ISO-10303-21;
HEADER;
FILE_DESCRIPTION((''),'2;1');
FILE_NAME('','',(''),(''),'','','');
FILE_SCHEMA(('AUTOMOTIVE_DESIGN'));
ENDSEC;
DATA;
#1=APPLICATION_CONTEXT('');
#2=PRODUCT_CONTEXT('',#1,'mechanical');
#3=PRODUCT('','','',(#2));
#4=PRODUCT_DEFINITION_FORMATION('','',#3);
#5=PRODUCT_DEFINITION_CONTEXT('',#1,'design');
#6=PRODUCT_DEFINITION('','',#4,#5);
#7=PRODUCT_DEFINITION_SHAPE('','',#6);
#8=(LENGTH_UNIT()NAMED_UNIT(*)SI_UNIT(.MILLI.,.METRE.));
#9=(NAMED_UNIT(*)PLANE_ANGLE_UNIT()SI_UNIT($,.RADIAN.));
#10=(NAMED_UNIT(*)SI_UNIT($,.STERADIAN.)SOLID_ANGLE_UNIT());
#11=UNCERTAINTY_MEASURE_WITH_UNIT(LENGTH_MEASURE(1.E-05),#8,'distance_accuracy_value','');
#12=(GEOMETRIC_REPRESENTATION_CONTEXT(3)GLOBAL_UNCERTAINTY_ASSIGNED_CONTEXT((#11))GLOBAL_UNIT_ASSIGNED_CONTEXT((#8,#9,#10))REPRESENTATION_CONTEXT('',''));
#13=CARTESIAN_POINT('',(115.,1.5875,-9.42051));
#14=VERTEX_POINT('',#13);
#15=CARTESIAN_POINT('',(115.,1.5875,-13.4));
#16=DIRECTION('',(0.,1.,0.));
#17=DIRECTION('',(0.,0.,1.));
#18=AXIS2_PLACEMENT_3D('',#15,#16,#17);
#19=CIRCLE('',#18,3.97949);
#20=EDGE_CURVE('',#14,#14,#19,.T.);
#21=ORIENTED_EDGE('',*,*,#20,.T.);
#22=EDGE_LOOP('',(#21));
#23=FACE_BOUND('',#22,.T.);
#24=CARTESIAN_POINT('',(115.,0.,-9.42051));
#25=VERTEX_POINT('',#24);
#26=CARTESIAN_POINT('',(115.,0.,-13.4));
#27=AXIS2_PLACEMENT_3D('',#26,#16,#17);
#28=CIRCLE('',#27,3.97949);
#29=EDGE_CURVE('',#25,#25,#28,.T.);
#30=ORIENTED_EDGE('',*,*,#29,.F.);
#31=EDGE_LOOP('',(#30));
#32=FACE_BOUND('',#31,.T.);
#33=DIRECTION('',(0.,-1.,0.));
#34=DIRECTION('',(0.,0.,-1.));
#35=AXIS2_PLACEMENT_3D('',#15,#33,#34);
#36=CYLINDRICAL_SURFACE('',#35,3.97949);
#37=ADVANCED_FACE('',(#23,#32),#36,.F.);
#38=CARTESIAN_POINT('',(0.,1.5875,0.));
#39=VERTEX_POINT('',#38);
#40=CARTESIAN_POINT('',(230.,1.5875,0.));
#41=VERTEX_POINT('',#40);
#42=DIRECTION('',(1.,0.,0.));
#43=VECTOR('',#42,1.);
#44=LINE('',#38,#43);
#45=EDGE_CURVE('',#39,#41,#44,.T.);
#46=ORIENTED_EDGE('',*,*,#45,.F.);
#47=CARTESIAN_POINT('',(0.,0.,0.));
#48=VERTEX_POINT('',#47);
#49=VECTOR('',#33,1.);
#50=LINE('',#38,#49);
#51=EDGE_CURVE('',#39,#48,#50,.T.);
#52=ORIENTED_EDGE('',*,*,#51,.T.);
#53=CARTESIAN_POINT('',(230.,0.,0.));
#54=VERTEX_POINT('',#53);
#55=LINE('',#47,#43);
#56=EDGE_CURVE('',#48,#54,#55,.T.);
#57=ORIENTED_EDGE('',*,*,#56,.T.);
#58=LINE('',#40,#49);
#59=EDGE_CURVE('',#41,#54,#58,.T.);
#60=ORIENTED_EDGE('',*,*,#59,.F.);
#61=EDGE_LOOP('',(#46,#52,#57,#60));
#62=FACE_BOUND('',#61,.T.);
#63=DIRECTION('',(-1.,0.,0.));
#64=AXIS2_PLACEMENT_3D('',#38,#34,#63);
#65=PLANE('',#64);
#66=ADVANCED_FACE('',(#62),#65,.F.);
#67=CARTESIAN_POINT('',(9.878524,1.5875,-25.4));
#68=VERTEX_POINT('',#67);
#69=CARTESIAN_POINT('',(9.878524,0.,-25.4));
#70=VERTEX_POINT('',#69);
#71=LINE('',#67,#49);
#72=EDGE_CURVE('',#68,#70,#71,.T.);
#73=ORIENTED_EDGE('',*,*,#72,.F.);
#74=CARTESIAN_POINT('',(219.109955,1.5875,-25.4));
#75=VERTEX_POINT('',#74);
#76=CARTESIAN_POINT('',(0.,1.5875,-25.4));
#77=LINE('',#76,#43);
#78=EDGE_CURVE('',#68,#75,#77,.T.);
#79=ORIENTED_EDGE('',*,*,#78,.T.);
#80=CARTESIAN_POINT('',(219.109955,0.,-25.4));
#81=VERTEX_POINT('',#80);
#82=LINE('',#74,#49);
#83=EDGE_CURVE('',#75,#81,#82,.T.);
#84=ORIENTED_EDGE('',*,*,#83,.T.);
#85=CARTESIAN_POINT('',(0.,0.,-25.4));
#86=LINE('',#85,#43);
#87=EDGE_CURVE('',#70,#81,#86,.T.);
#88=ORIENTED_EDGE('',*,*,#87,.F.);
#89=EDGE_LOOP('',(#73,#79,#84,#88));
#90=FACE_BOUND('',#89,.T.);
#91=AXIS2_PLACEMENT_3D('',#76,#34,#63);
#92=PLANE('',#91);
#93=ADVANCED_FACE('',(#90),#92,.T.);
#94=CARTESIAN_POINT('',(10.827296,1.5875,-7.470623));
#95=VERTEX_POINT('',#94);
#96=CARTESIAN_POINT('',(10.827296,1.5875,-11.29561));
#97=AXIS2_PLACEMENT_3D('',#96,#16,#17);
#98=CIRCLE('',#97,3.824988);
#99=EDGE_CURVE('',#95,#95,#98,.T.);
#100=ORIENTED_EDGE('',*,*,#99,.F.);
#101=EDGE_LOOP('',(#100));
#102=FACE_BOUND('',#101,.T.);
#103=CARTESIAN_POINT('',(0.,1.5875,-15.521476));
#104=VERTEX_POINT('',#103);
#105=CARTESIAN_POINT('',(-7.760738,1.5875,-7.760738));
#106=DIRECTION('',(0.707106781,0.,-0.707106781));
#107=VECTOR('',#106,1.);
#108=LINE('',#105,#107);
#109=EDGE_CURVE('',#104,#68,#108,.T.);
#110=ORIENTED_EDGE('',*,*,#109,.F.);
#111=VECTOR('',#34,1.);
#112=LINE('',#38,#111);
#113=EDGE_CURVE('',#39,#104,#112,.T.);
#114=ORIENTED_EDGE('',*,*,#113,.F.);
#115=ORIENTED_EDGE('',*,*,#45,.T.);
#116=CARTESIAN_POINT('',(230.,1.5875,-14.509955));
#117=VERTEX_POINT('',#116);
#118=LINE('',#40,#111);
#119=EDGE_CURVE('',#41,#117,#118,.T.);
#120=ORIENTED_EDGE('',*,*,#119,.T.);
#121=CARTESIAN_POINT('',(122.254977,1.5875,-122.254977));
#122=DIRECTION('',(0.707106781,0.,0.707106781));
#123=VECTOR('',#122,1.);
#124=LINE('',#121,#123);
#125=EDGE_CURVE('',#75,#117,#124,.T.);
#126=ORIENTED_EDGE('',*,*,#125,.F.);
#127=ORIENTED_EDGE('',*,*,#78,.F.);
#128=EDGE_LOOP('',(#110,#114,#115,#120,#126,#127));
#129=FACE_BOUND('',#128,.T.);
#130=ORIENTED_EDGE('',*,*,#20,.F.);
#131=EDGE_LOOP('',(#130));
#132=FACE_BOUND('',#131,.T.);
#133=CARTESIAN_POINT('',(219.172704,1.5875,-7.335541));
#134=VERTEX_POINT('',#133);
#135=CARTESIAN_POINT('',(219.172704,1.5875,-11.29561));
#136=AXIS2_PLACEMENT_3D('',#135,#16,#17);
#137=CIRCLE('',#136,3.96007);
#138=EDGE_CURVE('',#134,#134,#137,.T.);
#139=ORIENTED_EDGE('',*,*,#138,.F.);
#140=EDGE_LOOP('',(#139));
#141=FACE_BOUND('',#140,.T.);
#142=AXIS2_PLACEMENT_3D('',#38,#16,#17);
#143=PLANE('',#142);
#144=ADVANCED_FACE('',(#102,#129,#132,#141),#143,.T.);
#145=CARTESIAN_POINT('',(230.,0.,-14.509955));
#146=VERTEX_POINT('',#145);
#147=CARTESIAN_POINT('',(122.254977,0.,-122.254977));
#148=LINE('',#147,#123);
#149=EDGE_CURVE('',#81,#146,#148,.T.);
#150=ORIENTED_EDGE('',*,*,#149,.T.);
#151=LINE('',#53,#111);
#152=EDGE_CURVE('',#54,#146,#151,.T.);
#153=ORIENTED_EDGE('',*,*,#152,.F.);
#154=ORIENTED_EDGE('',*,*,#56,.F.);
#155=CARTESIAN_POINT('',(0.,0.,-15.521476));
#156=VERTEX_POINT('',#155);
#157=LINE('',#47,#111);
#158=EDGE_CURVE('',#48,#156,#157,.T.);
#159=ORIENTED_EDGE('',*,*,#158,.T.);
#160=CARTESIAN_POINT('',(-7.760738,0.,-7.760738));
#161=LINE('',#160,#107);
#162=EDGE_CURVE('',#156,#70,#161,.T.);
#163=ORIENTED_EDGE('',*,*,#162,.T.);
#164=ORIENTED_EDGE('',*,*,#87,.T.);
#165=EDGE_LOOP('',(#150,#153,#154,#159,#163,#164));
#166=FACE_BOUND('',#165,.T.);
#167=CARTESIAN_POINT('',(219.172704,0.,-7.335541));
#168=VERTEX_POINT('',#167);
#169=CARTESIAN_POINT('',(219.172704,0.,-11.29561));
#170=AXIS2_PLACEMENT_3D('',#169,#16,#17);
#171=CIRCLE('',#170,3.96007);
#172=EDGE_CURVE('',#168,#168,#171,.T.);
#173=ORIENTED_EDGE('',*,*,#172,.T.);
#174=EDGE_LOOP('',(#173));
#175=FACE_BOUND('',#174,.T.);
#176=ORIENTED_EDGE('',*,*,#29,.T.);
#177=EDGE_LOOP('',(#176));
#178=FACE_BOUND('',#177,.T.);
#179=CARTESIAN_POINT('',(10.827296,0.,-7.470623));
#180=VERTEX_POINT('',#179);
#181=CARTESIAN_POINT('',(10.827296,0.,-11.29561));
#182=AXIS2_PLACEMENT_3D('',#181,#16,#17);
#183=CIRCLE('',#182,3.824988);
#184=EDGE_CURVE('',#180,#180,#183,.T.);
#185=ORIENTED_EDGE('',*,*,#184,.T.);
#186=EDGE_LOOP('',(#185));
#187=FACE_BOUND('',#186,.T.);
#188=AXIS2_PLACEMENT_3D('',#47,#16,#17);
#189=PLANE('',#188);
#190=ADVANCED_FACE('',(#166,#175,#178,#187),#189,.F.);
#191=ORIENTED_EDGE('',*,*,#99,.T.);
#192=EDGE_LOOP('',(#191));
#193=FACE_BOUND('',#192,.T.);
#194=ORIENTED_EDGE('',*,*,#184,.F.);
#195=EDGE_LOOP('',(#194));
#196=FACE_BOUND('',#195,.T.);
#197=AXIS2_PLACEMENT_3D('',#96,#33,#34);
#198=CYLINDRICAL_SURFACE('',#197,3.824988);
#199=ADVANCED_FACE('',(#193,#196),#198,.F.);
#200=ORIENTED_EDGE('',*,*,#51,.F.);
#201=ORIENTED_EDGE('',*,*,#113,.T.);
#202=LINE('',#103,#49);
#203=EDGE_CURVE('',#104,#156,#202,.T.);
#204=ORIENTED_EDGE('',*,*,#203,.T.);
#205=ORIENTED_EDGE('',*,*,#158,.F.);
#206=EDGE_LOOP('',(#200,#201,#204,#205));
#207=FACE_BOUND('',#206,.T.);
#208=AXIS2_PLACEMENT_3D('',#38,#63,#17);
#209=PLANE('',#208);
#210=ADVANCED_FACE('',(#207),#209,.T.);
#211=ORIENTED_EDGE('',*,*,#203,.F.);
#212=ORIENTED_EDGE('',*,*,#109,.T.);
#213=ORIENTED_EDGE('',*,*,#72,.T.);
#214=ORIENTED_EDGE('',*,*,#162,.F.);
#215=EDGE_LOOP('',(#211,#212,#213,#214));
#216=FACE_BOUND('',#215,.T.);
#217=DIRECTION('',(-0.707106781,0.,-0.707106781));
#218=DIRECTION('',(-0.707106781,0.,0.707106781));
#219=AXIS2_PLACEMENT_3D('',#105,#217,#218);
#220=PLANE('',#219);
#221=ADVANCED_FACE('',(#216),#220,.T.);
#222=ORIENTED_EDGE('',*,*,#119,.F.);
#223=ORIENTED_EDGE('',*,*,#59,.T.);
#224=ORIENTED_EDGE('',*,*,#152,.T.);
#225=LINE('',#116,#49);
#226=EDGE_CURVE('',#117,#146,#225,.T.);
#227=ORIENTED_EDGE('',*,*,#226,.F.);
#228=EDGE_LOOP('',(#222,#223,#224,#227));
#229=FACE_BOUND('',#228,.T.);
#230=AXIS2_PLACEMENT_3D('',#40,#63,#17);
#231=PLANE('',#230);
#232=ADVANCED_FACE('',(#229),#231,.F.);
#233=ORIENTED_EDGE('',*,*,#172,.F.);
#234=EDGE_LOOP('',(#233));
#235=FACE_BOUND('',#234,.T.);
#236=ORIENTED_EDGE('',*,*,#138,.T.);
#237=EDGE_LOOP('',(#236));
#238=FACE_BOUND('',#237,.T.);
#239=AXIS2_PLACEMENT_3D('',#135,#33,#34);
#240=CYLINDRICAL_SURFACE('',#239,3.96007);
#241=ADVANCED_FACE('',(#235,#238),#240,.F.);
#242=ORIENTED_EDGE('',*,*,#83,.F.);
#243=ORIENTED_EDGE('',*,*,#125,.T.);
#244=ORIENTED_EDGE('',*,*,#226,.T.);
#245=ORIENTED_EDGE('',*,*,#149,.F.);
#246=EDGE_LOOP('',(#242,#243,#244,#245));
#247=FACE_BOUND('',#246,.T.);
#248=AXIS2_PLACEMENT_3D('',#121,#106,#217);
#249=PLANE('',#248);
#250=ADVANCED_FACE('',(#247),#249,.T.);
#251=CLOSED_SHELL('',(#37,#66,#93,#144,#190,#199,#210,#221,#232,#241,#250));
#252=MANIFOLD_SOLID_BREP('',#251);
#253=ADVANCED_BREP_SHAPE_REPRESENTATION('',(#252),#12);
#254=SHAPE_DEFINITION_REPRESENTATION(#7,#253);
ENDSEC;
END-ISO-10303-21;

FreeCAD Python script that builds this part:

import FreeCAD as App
import Part
import Sketcher
from FreeCAD import Vector
Q = App.Units.Quantity


def add_polygon(sketch, points):
    """Adds a closed chain of lines whose ends are joined by coincident constraints."""
    first, n = sketch.GeometryCount, len(points)
    for a, b in zip(points, points[1:] + points[:1]):
        sketch.addGeometry(Part.LineSegment(App.Vector(*a, 0), App.Vector(*b, 0)), False)
    for i in range(n):
        sketch.addConstraint(Sketcher.Constraint("Coincident", first + i, 2, first + (i + 1) % n, 1))

doc = App.newDocument("Part")
body = doc.addObject("PartDesign::Body", "Body")

sketch1 = body.newObject("Sketcher::SketchObject", "Sketch")
sketch1.AttachmentSupport = (doc.getObject("XZ_Plane"), [""])
sketch1.MapMode = "FlatFace"
add_polygon(sketch1, [(9.878524, -25.4), (0, -15.521476), (0, 0), (230, 0), (230, -14.509955), (219.109955, -25.4)])
sketch1.addGeometry(Part.Circle(Vector(10.827296, -11.29561, 0), Vector(0, 0, 1), 3.824988), False)
sketch1.addGeometry(Part.Circle(Vector(219.172704, -11.29561, 0), Vector(0, 0, 1), 3.96007), False)
sketch1.addGeometry(Part.Circle(Vector(115, -13.4, 0), Vector(0, 0, 1), 3.97949), False)
sketch1.addConstraint([
    Sketcher.Constraint("Vertical", 1),
    Sketcher.Constraint("Horizontal", 2),
    Sketcher.Constraint("Vertical", 3),
    Sketcher.Constraint("Horizontal", 5),
    Sketcher.Constraint("Coincident", 1, 2, -1, 1),
    Sketcher.Constraint("Perpendicular", 0, 4),
    Sketcher.Constraint("Horizontal", 6, 3, 7, 3),
    Sketcher.Constraint("DistanceX", 2, 1, 2, 2, 230.0),
    Sketcher.Constraint("Angle", 0, Q("135 deg")),
    Sketcher.Constraint("DistanceX", -1, 1, 8, 3, 115.0),
    Sketcher.Constraint("DistanceY", 4, 2, 8, 3, 12.0),
    Sketcher.Constraint("DistanceY", 8, 3, -1, 1, 13.4),
    Sketcher.Constraint("Diameter", 7, 7.920139),
    Sketcher.Constraint("Diameter", 8, 7.95898),
    Sketcher.Constraint("Diameter", 6, 7.649975),
    Sketcher.Constraint("DistanceX", 5, 2, 5, 1, 209.23143),
    Sketcher.Constraint("Distance", 4, 15.40085),
    Sketcher.Constraint("DistanceY", 6, 3, -1, 1, 11.29561),
    Sketcher.Constraint("DistanceX", 4, 2, 7, 3, 0.062749),
    Sketcher.Constraint("DistanceX", 6, 3, 4, 2, 208.282658),
])
pad1 = body.newObject("PartDesign::Pad", "Pad")
pad1.Profile = sketch1
pad1.Length = 1.5875
pad1.Reversed = True

doc.recompute()
